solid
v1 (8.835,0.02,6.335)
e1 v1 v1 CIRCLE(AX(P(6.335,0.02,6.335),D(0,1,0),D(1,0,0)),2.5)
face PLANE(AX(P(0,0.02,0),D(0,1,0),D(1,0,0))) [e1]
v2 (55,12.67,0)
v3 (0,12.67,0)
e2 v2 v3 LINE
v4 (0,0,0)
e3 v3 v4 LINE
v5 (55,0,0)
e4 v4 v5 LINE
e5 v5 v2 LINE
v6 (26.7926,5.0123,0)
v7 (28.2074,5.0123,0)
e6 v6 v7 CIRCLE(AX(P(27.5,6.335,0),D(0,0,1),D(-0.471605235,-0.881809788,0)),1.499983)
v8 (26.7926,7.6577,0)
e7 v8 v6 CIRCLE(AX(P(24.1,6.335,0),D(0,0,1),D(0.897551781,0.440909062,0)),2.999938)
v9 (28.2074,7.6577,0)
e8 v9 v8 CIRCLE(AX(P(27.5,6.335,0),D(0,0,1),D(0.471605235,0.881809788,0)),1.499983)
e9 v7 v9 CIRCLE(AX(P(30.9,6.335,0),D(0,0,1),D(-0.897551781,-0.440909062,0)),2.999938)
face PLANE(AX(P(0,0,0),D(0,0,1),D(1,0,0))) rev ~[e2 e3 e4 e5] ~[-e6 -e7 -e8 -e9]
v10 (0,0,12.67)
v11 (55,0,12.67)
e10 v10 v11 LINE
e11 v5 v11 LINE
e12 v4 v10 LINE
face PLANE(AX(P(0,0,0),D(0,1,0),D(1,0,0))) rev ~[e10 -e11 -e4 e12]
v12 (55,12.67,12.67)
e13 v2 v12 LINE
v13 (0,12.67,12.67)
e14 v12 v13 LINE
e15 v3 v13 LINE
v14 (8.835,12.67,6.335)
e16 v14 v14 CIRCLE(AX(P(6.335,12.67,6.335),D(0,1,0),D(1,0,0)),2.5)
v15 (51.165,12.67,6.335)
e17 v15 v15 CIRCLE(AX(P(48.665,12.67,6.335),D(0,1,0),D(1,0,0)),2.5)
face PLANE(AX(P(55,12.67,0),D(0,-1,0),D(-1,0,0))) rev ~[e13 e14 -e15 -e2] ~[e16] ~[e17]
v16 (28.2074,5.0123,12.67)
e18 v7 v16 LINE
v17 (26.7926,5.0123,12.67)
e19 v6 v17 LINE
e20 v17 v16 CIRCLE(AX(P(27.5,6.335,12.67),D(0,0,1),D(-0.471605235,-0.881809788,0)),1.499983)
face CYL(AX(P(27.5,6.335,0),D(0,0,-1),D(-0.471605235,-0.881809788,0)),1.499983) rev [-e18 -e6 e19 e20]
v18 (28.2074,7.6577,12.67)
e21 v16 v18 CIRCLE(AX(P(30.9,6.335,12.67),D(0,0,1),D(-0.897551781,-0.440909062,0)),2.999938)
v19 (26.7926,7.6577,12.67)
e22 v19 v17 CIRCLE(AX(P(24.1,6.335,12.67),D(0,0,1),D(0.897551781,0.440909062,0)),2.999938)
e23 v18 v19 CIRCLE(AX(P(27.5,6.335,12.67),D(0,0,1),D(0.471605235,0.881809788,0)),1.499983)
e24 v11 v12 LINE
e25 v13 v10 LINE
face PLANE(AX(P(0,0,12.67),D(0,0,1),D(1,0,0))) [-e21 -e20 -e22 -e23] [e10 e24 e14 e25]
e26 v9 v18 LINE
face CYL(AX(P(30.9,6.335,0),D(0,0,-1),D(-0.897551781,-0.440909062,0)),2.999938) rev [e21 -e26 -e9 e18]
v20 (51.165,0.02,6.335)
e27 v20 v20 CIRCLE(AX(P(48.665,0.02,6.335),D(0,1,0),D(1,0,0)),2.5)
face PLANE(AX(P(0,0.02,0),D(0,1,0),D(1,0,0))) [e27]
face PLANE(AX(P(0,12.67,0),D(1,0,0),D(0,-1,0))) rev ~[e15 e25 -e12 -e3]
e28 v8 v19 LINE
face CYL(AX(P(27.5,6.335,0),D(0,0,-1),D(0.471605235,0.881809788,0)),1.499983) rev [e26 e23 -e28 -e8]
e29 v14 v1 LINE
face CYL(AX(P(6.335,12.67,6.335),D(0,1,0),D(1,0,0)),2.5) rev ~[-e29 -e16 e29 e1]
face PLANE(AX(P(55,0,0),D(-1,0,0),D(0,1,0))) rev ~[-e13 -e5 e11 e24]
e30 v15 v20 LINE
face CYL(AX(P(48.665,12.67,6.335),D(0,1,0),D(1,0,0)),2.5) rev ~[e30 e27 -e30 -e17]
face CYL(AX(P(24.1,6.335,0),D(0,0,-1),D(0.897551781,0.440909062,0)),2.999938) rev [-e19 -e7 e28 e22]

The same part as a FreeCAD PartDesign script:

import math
import FreeCAD as App
import Part
import Sketcher


def add_polygon(sketch, points):
    """Adds a closed chain of lines whose ends are joined by coincident constraints."""
    first, n = sketch.GeometryCount, len(points)
    for a, b in zip(points, points[1:] + points[:1]):
        sketch.addGeometry(Part.LineSegment(App.Vector(*a, 0), App.Vector(*b, 0)), False)
    for i in range(n):
        sketch.addConstraint(Sketcher.Constraint("Coincident", first + i, 2, first + (i + 1) % n, 1))

doc = App.newDocument("Part")
params = doc.addObject("Spreadsheet::Sheet", "Params")
for row, (alias, value) in enumerate([
    ("sketch1_radius", "3 mm"),
    ("sketch1_radius2", "1.5 mm"),
    ("sketch1_width", "55 mm"),
    ("sketch1_height", "12.67 mm"),
    ("pad1_length", "12.67 mm"),
    ("sketch2_diameter", "5 mm"),
    ("pocket1_length", "12.65 mm"),
], start=1):
    params.set(f"A{row}", alias)
    params.set(f"B{row}", "=" + value)
    params.setAlias(f"B{row}", alias)

body = doc.addObject("PartDesign::Body", "Body")

sketch1 = body.newObject("Sketcher::SketchObject", "Sketch")
sketch1.AttachmentSupport = (doc.getObject("XY_Plane"), [""])
sketch1.MapMode = "FlatFace"
add_polygon(sketch1, [(0, 12.7), (0, 0), (55, 0), (55, 12.7)])
sketch1.addGeometry(Part.ArcOfCircle(Part.Circle(App.Vector(27.5, 6.3, 0), App.Vector(0, 0, 1), 1.5), math.radians(-118), math.radians(-62)), False)
sketch1.addGeometry(Part.ArcOfCircle(Part.Circle(App.Vector(24.1, 6.3, 0), App.Vector(0, 0, 1), 3), math.radians(26), math.radians(334)), False)
sketch1.addGeometry(Part.ArcOfCircle(Part.Circle(App.Vector(27.5, 6.3, 0), App.Vector(0, 0, 1), 1.5), math.radians(62), math.radians(118)), False)
sketch1.addGeometry(Part.ArcOfCircle(Part.Circle(App.Vector(30.9, 6.3, 0), App.Vector(0, 0, 1), 3), math.radians(-154), math.radians(154)), False)
sketch1.addConstraint([
    Sketcher.Constraint("Coincident", 4, 1, 5, 2),
    Sketcher.Constraint("Coincident", 5, 1, 6, 2),
    Sketcher.Constraint("Coincident", 6, 1, 7, 2),
    Sketcher.Constraint("Coincident", 7, 1, 4, 2),
    Sketcher.Constraint("Vertical", 0),
    Sketcher.Constraint("Horizontal", 1),
    Sketcher.Constraint("Vertical", 2),
    Sketcher.Constraint("Horizontal", 3),
    Sketcher.Constraint("Coincident", 0, 2, -1, 1),
    Sketcher.Constraint("Coincident", 6, 3, 4, 3),
    Sketcher.Constraint("Equal", 4, 6),
    Sketcher.Constraint("Equal", 5, 7),
    Sketcher.Constraint("Horizontal", 4, 3, 5, 3),
    Sketcher.Constraint("Horizontal", 6, 3, 7, 3),
    Sketcher.Constraint("Horizontal", 5, 1, 6, 1),
    Sketcher.Constraint("Radius", 5, 3.0),
    Sketcher.Constraint("Radius", 4, 1.5),
    Sketcher.Constraint("DistanceX", 1, 1, 1, 2, 55.0),
    Sketcher.Constraint("DistanceY", 0, 2, 0, 1, 12.67),
    Sketcher.Constraint("DistanceX", -1, 1, 4, 3, 27.5),
    Sketcher.Constraint("DistanceX", 5, 3, 4, 3, 3.4),
    Sketcher.Constraint("DistanceY", -1, 1, 4, 3, 6.335),
])
sketch1.setExpression("Constraints[19]", "Params.sketch1_radius")
sketch1.setExpression("Constraints[20]", "Params.sketch1_radius2")
sketch1.setExpression("Constraints[21]", "Params.sketch1_width")
sketch1.setExpression("Constraints[22]", "Params.sketch1_height")
pad1 = body.newObject("PartDesign::Pad", "Pad")
pad1.Profile = sketch1
pad1.setExpression("Length", "Params.pad1_length")

sketch2 = body.newObject("Sketcher::SketchObject", "Sketch001")
sketch2.AttachmentSupport = (doc.getObject("XZ_Plane"), [""])
sketch2.MapMode = "FlatFace"
sketch2.AttachmentOffset = App.Placement(App.Vector(0, 0, -12.67), App.Rotation())
sketch2.addGeometry([
    Part.Circle(App.Vector(6.3, 6.3, 0), App.Vector(0, 0, 1), 2.5),
    Part.Circle(App.Vector(48.7, 6.3, 0), App.Vector(0, 0, 1), 2.5),
], False)
sketch2.addConstraint([
    Sketcher.Constraint("Equal", 0, 1),
    Sketcher.Constraint("Horizontal", 0, 3, 1, 3),
    Sketcher.Constraint("Diameter", 0, 5.0),
    Sketcher.Constraint("DistanceX", -1, 1, 0, 3, 6.335),
    Sketcher.Constraint("DistanceY", -1, 1, 0, 3, 6.335),
    Sketcher.Constraint("DistanceX", 0, 3, 1, 3, 42.33),
])
sketch2.setExpression("Constraints[2]", "Params.sketch2_diameter")
pocket1 = body.newObject("PartDesign::Pocket", "Pocket")
pocket1.Profile = sketch2
pocket1.setExpression("Length", "Params.pocket1_length")
pocket1.Reversed = True

doc.recompute()
